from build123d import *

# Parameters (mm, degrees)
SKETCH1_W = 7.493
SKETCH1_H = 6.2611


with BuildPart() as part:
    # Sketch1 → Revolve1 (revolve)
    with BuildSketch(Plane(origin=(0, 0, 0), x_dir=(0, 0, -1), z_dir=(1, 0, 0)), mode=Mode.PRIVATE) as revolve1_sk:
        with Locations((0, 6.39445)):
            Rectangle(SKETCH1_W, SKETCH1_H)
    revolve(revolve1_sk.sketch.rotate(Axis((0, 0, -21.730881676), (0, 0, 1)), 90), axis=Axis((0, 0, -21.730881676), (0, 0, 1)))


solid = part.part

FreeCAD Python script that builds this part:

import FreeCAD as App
import Part
import Sketcher

V = App.Vector
Q = App.Units.Quantity

doc = App.newDocument("Part")
body = doc.addObject("PartDesign::Body", "Body")

sketch1 = doc.addObject("Sketcher::SketchObject", "Sketch")
body.addObject(sketch1)
sketch1.AttachmentSupport = (doc.YZ_Plane, [""])
sketch1.MapMode = "FlatFace"
sketch1.addGeometry([
    Part.LineSegment(V(9.525, 3.7465, 0), V(3.2639, 3.7465, 0)),
    Part.LineSegment(V(3.2639, 3.7465, 0), V(3.2639, -3.7465, 0)),
    Part.LineSegment(V(3.2639, -3.7465, 0), V(9.525, -3.7465, 0)),
    Part.LineSegment(V(9.525, -3.7465, 0), V(9.525, 3.7465, 0)),
], False)
sketch1.addConstraint([
    Sketcher.Constraint("Coincident", 0, 2, 1, 1),
    Sketcher.Constraint("Coincident", 1, 2, 2, 1),
    Sketcher.Constraint("Coincident", 2, 2, 3, 1),
    Sketcher.Constraint("Coincident", 3, 2, 0, 1),
    Sketcher.Constraint("Horizontal", 0),
    Sketcher.Constraint("Vertical", 1),
    Sketcher.Constraint("Horizontal", 2),
    Sketcher.Constraint("Vertical", 3),
    Sketcher.Constraint("DistanceY", 1, 2, 1, 1, Q("0.295 in")),
    Sketcher.Constraint("DistanceX", 0, 2, 0, 1, Q("0.2465 in")),
    Sketcher.Constraint("DistanceX", -1, 1, 2, 2, Q("0.375 in")),
    Sketcher.Constraint("DistanceY", -1, 1, 0, 2, Q("0.1475 in")),
])
revolution = doc.addObject("PartDesign::Revolution", "Revolution")
body.addObject(revolution)
revolution.Profile = sketch1
revolution.ReferenceAxis = (sketch1, ["V_Axis"])
revolution.Angle = 360

doc.recompute()
